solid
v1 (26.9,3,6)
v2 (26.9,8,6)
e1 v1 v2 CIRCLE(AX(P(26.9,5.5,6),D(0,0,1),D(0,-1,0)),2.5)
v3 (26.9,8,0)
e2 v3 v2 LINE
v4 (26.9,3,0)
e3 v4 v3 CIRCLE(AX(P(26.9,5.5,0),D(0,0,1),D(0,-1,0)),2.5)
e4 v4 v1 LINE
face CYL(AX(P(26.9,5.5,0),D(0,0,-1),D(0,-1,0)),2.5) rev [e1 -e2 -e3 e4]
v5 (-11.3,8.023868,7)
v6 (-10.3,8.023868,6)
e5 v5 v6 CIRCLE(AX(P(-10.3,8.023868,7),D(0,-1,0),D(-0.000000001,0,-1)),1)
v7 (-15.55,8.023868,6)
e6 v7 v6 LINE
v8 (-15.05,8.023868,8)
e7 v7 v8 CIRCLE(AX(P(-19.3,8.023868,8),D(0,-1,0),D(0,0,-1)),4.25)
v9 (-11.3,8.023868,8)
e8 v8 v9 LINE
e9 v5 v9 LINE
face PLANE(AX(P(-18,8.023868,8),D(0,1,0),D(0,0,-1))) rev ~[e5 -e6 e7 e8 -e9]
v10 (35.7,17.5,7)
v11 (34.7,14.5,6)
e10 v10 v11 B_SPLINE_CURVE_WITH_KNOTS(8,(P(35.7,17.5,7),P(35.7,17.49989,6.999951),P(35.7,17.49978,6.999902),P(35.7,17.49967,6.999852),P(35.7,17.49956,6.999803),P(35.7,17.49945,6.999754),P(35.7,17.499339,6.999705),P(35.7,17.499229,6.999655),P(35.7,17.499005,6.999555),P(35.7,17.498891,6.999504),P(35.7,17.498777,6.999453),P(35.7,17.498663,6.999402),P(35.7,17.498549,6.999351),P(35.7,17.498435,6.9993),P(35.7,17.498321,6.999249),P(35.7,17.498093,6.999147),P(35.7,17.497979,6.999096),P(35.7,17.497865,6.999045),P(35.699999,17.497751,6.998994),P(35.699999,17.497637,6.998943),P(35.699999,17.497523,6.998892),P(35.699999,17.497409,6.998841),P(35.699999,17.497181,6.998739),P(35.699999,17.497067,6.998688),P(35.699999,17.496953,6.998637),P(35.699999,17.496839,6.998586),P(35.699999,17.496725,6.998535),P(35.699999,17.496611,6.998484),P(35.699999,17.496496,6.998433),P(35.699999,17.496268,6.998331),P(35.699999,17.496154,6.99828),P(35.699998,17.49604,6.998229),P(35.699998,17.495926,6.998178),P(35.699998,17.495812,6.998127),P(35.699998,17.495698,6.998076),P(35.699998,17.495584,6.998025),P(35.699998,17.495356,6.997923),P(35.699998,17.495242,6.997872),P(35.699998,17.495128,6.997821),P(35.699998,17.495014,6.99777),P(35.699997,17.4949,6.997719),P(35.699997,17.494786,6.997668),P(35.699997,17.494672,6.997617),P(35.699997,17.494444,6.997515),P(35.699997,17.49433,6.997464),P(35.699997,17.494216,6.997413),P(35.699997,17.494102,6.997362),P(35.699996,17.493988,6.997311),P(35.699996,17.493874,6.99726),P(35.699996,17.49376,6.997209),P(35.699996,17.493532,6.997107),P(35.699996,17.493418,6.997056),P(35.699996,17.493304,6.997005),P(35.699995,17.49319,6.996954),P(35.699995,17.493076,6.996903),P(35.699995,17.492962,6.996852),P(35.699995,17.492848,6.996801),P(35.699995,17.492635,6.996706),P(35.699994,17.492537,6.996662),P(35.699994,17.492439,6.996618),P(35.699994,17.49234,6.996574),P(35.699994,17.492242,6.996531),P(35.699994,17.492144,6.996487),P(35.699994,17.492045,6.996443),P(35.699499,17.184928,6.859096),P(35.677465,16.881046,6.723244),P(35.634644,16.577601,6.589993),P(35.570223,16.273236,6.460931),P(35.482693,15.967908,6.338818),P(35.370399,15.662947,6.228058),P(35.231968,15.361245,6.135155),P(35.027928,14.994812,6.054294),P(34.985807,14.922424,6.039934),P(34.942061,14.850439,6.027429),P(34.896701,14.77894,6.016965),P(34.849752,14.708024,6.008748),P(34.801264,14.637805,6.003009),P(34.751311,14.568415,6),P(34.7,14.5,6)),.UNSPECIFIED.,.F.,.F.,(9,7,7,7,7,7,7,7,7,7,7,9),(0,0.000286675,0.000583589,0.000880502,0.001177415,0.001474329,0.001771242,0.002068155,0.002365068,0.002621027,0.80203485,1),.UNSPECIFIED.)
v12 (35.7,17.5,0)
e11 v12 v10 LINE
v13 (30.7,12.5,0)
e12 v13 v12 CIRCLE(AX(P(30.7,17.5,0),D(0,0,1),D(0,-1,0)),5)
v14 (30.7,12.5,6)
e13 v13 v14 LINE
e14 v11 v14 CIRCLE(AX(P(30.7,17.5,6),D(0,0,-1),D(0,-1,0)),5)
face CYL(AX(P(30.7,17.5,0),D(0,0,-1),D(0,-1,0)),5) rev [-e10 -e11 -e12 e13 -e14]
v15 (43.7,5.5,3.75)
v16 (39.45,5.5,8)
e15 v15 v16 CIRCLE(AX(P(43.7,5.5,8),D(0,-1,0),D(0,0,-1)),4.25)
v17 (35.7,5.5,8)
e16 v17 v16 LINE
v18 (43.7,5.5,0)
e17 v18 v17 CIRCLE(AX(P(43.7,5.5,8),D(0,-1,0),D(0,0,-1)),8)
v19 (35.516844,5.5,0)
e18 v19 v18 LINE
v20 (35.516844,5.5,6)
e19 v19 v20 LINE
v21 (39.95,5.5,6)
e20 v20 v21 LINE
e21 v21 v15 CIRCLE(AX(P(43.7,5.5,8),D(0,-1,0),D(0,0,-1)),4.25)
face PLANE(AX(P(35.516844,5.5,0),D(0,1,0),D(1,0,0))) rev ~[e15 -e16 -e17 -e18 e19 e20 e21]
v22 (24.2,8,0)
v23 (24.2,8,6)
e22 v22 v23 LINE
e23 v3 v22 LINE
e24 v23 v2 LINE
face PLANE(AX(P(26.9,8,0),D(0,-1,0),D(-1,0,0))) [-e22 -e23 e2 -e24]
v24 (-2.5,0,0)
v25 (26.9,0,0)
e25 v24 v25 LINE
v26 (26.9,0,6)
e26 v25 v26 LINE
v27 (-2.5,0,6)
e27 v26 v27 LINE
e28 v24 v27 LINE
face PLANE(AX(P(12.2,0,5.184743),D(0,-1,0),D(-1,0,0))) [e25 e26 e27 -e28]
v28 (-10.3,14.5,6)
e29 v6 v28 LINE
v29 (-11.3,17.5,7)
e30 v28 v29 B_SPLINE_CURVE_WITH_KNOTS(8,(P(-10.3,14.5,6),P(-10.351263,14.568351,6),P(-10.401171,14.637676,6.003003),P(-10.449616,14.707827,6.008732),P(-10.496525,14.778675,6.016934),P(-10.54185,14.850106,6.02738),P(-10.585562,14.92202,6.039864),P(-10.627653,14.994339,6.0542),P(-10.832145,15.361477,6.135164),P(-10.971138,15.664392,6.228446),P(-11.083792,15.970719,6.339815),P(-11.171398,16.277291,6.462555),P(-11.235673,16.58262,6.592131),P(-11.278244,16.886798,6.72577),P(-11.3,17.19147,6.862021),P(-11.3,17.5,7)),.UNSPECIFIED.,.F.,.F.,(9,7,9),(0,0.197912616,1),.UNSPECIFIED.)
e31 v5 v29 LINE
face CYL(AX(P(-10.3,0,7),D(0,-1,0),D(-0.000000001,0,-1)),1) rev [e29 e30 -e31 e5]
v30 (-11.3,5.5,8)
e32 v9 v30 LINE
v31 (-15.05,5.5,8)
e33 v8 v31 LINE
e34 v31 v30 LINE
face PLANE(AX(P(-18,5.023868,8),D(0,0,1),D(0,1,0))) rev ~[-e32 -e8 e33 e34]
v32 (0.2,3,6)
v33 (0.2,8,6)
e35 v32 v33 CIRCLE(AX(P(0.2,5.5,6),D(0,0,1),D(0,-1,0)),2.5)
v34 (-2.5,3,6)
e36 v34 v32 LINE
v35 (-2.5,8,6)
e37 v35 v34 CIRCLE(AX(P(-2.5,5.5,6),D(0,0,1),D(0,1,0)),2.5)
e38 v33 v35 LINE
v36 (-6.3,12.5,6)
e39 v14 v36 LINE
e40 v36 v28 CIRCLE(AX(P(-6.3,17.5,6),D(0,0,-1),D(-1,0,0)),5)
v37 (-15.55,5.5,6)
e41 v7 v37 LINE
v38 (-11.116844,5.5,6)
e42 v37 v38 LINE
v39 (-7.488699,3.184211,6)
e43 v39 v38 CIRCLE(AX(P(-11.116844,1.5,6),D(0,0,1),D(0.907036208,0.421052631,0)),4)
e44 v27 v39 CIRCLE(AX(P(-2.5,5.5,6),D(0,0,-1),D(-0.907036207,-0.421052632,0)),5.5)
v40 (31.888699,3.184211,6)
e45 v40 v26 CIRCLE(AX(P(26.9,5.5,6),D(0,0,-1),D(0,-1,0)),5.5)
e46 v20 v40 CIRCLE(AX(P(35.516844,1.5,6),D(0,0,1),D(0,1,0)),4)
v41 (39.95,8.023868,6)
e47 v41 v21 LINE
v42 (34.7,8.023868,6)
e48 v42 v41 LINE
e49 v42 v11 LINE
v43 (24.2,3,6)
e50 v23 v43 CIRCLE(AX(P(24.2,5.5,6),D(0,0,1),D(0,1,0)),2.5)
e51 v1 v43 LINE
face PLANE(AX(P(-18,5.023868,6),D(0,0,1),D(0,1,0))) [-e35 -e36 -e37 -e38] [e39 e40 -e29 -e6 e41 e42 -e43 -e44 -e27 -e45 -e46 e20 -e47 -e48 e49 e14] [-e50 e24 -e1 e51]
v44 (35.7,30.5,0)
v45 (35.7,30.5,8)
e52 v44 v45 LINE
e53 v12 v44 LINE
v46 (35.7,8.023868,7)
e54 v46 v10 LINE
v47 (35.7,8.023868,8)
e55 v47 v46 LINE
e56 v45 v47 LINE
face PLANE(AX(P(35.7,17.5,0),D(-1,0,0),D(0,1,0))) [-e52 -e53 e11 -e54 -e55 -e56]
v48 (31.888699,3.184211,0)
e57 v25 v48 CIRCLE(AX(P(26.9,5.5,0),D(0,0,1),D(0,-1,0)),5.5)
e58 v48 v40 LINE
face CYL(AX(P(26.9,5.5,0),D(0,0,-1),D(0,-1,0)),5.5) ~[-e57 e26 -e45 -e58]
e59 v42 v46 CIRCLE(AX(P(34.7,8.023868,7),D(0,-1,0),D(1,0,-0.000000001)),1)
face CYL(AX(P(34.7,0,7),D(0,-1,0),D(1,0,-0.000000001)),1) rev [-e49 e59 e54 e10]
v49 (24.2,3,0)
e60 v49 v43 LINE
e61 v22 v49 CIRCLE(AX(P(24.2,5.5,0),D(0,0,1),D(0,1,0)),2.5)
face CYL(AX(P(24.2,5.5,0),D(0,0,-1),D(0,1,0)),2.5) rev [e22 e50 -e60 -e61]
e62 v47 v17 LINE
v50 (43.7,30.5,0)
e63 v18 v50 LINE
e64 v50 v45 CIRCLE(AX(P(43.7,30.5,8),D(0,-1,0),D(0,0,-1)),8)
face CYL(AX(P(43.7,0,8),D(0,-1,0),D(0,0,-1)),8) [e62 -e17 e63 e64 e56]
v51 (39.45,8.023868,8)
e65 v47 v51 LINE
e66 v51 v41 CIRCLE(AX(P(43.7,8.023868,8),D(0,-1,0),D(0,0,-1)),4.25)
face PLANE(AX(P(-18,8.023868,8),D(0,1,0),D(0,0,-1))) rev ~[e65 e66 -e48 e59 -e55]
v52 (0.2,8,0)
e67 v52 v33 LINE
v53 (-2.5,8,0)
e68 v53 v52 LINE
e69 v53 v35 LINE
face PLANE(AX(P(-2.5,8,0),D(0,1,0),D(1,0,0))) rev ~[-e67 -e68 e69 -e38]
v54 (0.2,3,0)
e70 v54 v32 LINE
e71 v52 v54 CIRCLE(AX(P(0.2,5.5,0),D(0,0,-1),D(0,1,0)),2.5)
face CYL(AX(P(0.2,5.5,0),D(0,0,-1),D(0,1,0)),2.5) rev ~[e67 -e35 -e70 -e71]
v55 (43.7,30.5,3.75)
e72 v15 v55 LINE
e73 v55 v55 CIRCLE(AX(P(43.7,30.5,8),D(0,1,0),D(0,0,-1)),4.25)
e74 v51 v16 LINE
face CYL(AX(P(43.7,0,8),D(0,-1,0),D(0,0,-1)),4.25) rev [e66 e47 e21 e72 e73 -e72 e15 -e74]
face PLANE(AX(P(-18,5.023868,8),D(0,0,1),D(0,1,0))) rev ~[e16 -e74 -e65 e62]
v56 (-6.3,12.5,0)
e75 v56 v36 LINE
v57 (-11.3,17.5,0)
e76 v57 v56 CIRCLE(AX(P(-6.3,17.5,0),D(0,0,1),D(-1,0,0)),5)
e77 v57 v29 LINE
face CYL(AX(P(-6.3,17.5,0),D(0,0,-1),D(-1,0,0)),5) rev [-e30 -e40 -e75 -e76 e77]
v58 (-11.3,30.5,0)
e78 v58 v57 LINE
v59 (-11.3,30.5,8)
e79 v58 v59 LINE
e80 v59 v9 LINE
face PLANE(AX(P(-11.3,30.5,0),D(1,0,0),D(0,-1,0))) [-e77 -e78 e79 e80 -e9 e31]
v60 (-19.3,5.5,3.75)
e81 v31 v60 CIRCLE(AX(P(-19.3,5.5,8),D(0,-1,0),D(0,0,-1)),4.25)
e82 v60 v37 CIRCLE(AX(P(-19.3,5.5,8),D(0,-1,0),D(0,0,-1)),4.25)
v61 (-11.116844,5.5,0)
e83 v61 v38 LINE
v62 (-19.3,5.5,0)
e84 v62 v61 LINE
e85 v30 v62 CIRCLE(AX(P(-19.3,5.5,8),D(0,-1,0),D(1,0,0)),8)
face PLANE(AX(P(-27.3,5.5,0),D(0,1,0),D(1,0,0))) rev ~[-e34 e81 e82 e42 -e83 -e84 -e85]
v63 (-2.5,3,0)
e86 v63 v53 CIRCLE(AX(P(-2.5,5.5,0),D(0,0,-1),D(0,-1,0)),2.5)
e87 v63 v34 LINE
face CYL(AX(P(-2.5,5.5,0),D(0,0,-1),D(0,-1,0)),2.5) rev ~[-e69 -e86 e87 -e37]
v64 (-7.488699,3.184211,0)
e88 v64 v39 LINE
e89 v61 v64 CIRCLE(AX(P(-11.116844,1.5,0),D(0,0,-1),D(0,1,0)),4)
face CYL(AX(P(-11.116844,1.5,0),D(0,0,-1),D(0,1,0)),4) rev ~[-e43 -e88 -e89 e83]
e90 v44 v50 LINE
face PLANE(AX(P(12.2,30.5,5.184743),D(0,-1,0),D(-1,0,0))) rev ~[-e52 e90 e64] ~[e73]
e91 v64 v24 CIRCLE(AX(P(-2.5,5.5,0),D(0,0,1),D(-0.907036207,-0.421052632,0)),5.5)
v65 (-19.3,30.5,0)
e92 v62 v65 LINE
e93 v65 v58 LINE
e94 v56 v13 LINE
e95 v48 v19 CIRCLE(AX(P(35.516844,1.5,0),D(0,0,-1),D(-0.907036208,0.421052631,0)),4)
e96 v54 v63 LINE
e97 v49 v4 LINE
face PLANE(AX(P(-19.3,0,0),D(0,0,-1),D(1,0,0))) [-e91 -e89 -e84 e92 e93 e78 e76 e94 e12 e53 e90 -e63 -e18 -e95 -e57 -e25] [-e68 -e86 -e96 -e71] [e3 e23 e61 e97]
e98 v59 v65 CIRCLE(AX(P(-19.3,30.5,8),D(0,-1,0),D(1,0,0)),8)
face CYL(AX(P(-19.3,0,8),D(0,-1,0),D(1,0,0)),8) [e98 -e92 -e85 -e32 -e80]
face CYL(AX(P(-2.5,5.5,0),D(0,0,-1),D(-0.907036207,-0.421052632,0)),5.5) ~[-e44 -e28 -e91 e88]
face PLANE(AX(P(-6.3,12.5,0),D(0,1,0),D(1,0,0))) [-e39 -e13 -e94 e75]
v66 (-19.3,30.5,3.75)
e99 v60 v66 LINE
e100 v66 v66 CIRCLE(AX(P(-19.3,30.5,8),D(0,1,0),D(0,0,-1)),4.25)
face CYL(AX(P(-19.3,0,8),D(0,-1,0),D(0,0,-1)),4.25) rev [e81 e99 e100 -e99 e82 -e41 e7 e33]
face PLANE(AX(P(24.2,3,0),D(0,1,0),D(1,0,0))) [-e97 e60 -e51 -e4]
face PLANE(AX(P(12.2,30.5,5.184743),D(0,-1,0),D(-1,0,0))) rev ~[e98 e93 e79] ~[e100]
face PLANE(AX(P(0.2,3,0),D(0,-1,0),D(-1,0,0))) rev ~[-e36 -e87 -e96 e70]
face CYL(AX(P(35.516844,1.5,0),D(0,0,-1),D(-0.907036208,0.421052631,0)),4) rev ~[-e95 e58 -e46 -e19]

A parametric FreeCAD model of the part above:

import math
import FreeCAD as App
import Part
import Sketcher


def add_polygon(sketch, points):
    """Adds a closed chain of lines whose ends are joined by coincident constraints."""
    first, n = sketch.GeometryCount, len(points)
    for a, b in zip(points, points[1:] + points[:1]):
        sketch.addGeometry(Part.LineSegment(App.Vector(*a, 0), App.Vector(*b, 0)), False)
    for i in range(n):
        sketch.addConstraint(Sketcher.Constraint("Coincident", first + i, 2, first + (i + 1) % n, 1))

doc = App.newDocument("Part")
params = doc.addObject("Spreadsheet::Sheet", "Params")
for row, (alias, value) in enumerate([
    ("sketch1_radius", "8 mm"),
    ("sketch1_radius2", "1 mm"),
    ("sketch1_diameter", "8.5 mm"),
    ("sketch1_width", "63 mm"),
    ("sketch1_height", "1 mm"),
    ("pad1_length", "30.5 mm"),
    ("sketch2_radius", "4 mm"),
    ("sketch2_radius2", "5 mm"),
    ("sketch2_radius3", "2.5 mm"),
    ("sketch2_radius4", "5.5 mm"),
    ("sketch2_width", "37 mm"),
    ("sketch3_width", "3 mm"),
    ("sketch3_height", "2 mm"),
    ("pocket2_length", "42 mm"),
    ("pocket2_length2", "18 mm"),
], start=1):
    params.set(f"A{row}", alias)
    params.set(f"B{row}", "=" + value)
    params.setAlias(f"B{row}", alias)

body = doc.addObject("PartDesign::Body", "Body")

sketch1 = body.newObject("Sketcher::SketchObject", "Sketch")
sketch1.AttachmentSupport = (doc.getObject("XZ_Plane"), [""])
sketch1.MapMode = "FlatFace"
sketch1.addGeometry([
    Part.LineSegment(App.Vector(43.7, 0, 0), App.Vector(-19.3, 0, 0)),
    Part.ArcOfCircle(Part.Circle(App.Vector(-19.3, 8, 0), App.Vector(0, 0, 1), 8), math.radians(0), math.radians(270)),
    Part.LineSegment(App.Vector(-11.3, 8, 0), App.Vector(-11.3, 7, 0)),
    Part.ArcOfCircle(Part.Circle(App.Vector(-10.3, 7, 0), App.Vector(0, 0, 1), 1), math.radians(-180), math.radians(-90)),
    Part.LineSegment(App.Vector(-10.3, 6, 0), App.Vector(34.7, 6, 0)),
    Part.ArcOfCircle(Part.Circle(App.Vector(34.7, 7, 0), App.Vector(0, 0, 1), 1), math.radians(-90), math.radians(0)),
    Part.LineSegment(App.Vector(35.7, 7, 0), App.Vector(35.7, 8, 0)),
    Part.ArcOfCircle(Part.Circle(App.Vector(43.7, 8, 0), App.Vector(0, 0, 1), 8), math.radians(-90), math.radians(180)),
    Part.Circle(App.Vector(43.7, 8, 0), App.Vector(0, 0, 1), 4.2),
    Part.Circle(App.Vector(-19.3, 8, 0), App.Vector(0, 0, 1), 4.2),
], False)
sketch1.addConstraint([
    Sketcher.Constraint("Tangent", 0, 2, 1, 2),
    Sketcher.Constraint("Tangent", 1, 1, 2, 1),
    Sketcher.Constraint("Tangent", 2, 2, 3, 1),
    Sketcher.Constraint("Tangent", 3, 2, 4, 1),
    Sketcher.Constraint("Tangent", 4, 2, 5, 1),
    Sketcher.Constraint("Tangent", 5, 2, 6, 1),
    Sketcher.Constraint("Tangent", 6, 2, 7, 2),
    Sketcher.Constraint("Tangent", 7, 1, 0, 1),
    Sketcher.Constraint("Horizontal", 0),
    Sketcher.Constraint("Vertical", 2),
    Sketcher.Constraint("Horizontal", 4),
    Sketcher.Constraint("Vertical", 6),
    Sketcher.Constraint("Coincident", 8, 3, 7, 3),
    Sketcher.Constraint("Coincident", 9, 3, 1, 3),
    Sketcher.Constraint("Equal", 3, 5),
    Sketcher.Constraint("Equal", 1, 7),
    Sketcher.Constraint("Equal", 8, 9),
    Sketcher.Constraint("PointOnObject", 0, 2, -1),
    Sketcher.Constraint("Radius", 1, 8.0),
    Sketcher.Constraint("Radius", 3, 1.0),
    Sketcher.Constraint("Diameter", 8, 8.5),
    Sketcher.Constraint("DistanceX", 0, 2, 0, 1, 63.0),
    Sketcher.Constraint("DistanceY", 2, 2, 2, 1, 1.0),
    Sketcher.Constraint("DistanceX", 1, 3, -1, 1, 19.3),
])
sketch1.setExpression("Constraints[18]", "Params.sketch1_radius")
sketch1.setExpression("Constraints[19]", "Params.sketch1_radius2")
sketch1.setExpression("Constraints[20]", "Params.sketch1_diameter")
sketch1.setExpression("Constraints[21]", "Params.sketch1_width")
sketch1.setExpression("Constraints[22]", "Params.sketch1_height")
pad1 = body.newObject("PartDesign::Pad", "Pad")
pad1.Profile = sketch1
pad1.setExpression("Length", "Params.pad1_length")
pad1.Reversed = True

sketch2 = body.newObject("Sketcher::SketchObject", "Sketch001")
sketch2.AttachmentSupport = (doc.getObject("XY_Plane"), [""])
sketch2.MapMode = "FlatFace"
sketch2.addGeometry([
    Part.LineSegment(App.Vector(24.2, 3, 0), App.Vector(26.9, 3, 0)),
    Part.ArcOfCircle(Part.Circle(App.Vector(26.9, 5.5, 0), App.Vector(0, 0, 1), 2.5), math.radians(-90), math.radians(90)),
    Part.LineSegment(App.Vector(26.9, 8, 0), App.Vector(24.2, 8, 0)),
    Part.ArcOfCircle(Part.Circle(App.Vector(24.2, 5.5, 0), App.Vector(0, 0, 1), 2.5), math.radians(90), math.radians(270)),
    Part.LineSegment(App.Vector(0.2, 8, 0), App.Vector(-2.5, 8, 0)),
    Part.ArcOfCircle(Part.Circle(App.Vector(-2.5, 5.5, 0), App.Vector(0, 0, 1), 2.5), math.radians(90), math.radians(270)),
    Part.LineSegment(App.Vector(-2.5, 3, 0), App.Vector(0.2, 3, 0)),
    Part.ArcOfCircle(Part.Circle(App.Vector(0.2, 5.5, 0), App.Vector(0, 0, 1), 2.5), math.radians(-90), math.radians(90)),
    Part.LineSegment(App.Vector(51.7, 5.5, 0), App.Vector(35.5, 5.5, 0)),
    Part.ArcOfCircle(Part.Circle(App.Vector(35.5, 1.5, 0), App.Vector(0, 0, 1), 4), math.radians(90), math.radians(155)),
    Part.ArcOfCircle(Part.Circle(App.Vector(26.9, 5.5, 0), App.Vector(0, 0, 1), 5.5), math.radians(-90), math.radians(-25)),
    Part.LineSegment(App.Vector(26.9, 0, 0), App.Vector(51.7, 0, 0)),
    Part.LineSegment(App.Vector(51.7, 0, 0), App.Vector(51.7, 5.5, 0)),
    Part.LineSegment(App.Vector(-11.1, 5.5, 0), App.Vector(-27.3, 5.5, 0)),
    Part.LineSegment(App.Vector(-27.3, 5.5, 0), App.Vector(-27.3, 0, 0)),
    Part.LineSegment(App.Vector(-27.3, 0, 0), App.Vector(-2.5, 0, 0)),
    Part.ArcOfCircle(Part.Circle(App.Vector(-2.5, 5.5, 0), App.Vector(0, 0, 1), 5.5), math.radians(-155), math.radians(-90)),
    Part.ArcOfCircle(Part.Circle(App.Vector(-11.1, 1.5, 0), App.Vector(0, 0, 1), 4), math.radians(25), math.radians(90)),
    Part.LineSegment(App.Vector(-11.3, 30.5, 0), App.Vector(-11.3, 17.5, 0)),
    Part.ArcOfCircle(Part.Circle(App.Vector(-6.3, 17.5, 0), App.Vector(0, 0, 1), 5), math.radians(180), math.radians(270)),
    Part.LineSegment(App.Vector(-6.3, 12.5, 0), App.Vector(30.7, 12.5, 0)),
    Part.ArcOfCircle(Part.Circle(App.Vector(30.7, 17.5, 0), App.Vector(0, 0, 1), 5), math.radians(-90), math.radians(0)),
    Part.LineSegment(App.Vector(35.7, 17.5, 0), App.Vector(35.7, 30.5, 0)),
    Part.LineSegment(App.Vector(35.7, 30.5, 0), App.Vector(-11.3, 30.5, 0)),
], False)
sketch2.addConstraint([
    Sketcher.Constraint("Tangent", 0, 2, 1, 1),
    Sketcher.Constraint("Tangent", 1, 2, 2, 1),
    Sketcher.Constraint("Tangent", 2, 2, 3, 1),
    Sketcher.Constraint("Tangent", 3, 2, 0, 1),
    Sketcher.Constraint("Tangent", 4, 2, 5, 1),
    Sketcher.Constraint("Tangent", 5, 2, 6, 1),
    Sketcher.Constraint("Tangent", 6, 2, 7, 1),
    Sketcher.Constraint("Tangent", 7, 2, 4, 1),
    Sketcher.Constraint("Tangent", 8, 2, 9, 1),
    Sketcher.Constraint("Tangent", 9, 2, 10, 2),
    Sketcher.Constraint("Tangent", 10, 1, 11, 1),
    Sketcher.Constraint("Coincident", 11, 2, 12, 1),
    Sketcher.Constraint("Coincident", 12, 2, 8, 1),
    Sketcher.Constraint("Coincident", 13, 2, 14, 1),
    Sketcher.Constraint("Coincident", 14, 2, 15, 1),
    Sketcher.Constraint("Tangent", 15, 2, 16, 2),
    Sketcher.Constraint("Tangent", 16, 1, 17, 1),
    Sketcher.Constraint("Tangent", 17, 2, 13, 1),
    Sketcher.Constraint("Tangent", 18, 2, 19, 1),
    Sketcher.Constraint("Tangent", 19, 2, 20, 1),
    Sketcher.Constraint("Tangent", 20, 2, 21, 1),
    Sketcher.Constraint("Tangent", 21, 2, 22, 1),
    Sketcher.Constraint("Coincident", 22, 2, 23, 1),
    Sketcher.Constraint("Coincident", 23, 2, 18, 1),
    Sketcher.Constraint("Horizontal", 0),
    Sketcher.Constraint("Horizontal", 2),
    Sketcher.Constraint("Horizontal", 4),
    Sketcher.Constraint("Horizontal", 6),
    Sketcher.Constraint("Horizontal", 8),
    Sketcher.Constraint("Horizontal", 11),
    Sketcher.Constraint("Vertical", 12),
    Sketcher.Constraint("Horizontal", 13),
    Sketcher.Constraint("Vertical", 14),
    Sketcher.Constraint("Horizontal", 15),
    Sketcher.Constraint("Vertical", 18),
    Sketcher.Constraint("Horizontal", 20),
    Sketcher.Constraint("Vertical", 22),
    Sketcher.Constraint("Horizontal", 23),
    Sketcher.Constraint("Coincident", 10, 3, 1, 3),
    Sketcher.Constraint("Coincident", 16, 3, 5, 3),
    Sketcher.Constraint("Equal", 3, 5),
    Sketcher.Constraint("Equal", 10, 16),
    Sketcher.Constraint("Equal", 9, 17),
    Sketcher.Constraint("Equal", 19, 21),
    Sketcher.Constraint("PointOnObject", 10, 1, -1),
    Sketcher.Constraint("PointOnObject", 14, 2, -1),
    Sketcher.Constraint("Horizontal", 9, 3, 17, 3),
    Sketcher.Constraint("Horizontal", 16, 3, 8, 2),
    Sketcher.Constraint("Equal", 2, 4),
    Sketcher.Constraint("Equal", 8, 13),
    Sketcher.Constraint("Radius", 9, 4.0),
    Sketcher.Constraint("Radius", 19, 5.0),
    Sketcher.Constraint("Radius", 1, 2.5),
    Sketcher.Constraint("Radius", 10, 5.5),
    Sketcher.Constraint("DistanceX", 20, 1, 20, 2, 37.0),
    Sketcher.Constraint("DistanceY", 18, 2, 18, 1, 13.0),
    Sketcher.Constraint("DistanceX", 0, 1, 0, 2, 2.7),
    Sketcher.Constraint("DistanceX", 11, 1, 11, 2, 24.8),
    Sketcher.Constraint("DistanceX", 7, 3, 3, 3, 24.0),
    Sketcher.Constraint("DistanceY", 5, 3, 19, 3, 12.0),
    Sketcher.Constraint("DistanceX", 21, 3, 12, 2, 21.0),
    Sketcher.Constraint("DistanceX", -1, 1, 1, 3, 26.9),
])
sketch2.setExpression("Constraints[50]", "Params.sketch2_radius")
sketch2.setExpression("Constraints[51]", "Params.sketch2_radius2")
sketch2.setExpression("Constraints[52]", "Params.sketch2_radius3")
sketch2.setExpression("Constraints[53]", "Params.sketch2_radius4")
sketch2.setExpression("Constraints[54]", "Params.sketch2_width")
pocket1 = body.newObject("PartDesign::Pocket", "Pocket")
pocket1.Profile = sketch2
pocket1.Type = "ThroughAll"
pocket1.Reversed = True

sketch3 = body.newObject("Sketcher::SketchObject", "Sketch002")
sketch3.AttachmentSupport = (doc.getObject("YZ_Plane"), [""])
sketch3.MapMode = "FlatFace"
add_polygon(sketch3, [(8, 8), (5, 8), (5, 6), (8, 6)])
sketch3.addConstraint([
    Sketcher.Constraint("Horizontal", 0),
    Sketcher.Constraint("Vertical", 1),
    Sketcher.Constraint("Horizontal", 2),
    Sketcher.Constraint("Vertical", 3),
    Sketcher.Constraint("DistanceX", 0, 2, 0, 1, 3.0),
    Sketcher.Constraint("DistanceY", 1, 2, 1, 1, 2.0),
    Sketcher.Constraint("DistanceY", -1, 1, 0, 2, 8.0),
    Sketcher.Constraint("DistanceX", -1, 1, 0, 2, 5.023868),
])
sketch3.setExpression("Constraints[8]", "Params.sketch3_width")
sketch3.setExpression("Constraints[9]", "Params.sketch3_height")
pocket2 = body.newObject("PartDesign::Pocket", "Pocket001")
pocket2.Profile = sketch3
pocket2.Type = "TwoLengths"
pocket2.setExpression("Length", "Params.pocket2_length")
pocket2.setExpression("Length2", "Params.pocket2_length2")
pocket2.Reversed = True

doc.recompute()
